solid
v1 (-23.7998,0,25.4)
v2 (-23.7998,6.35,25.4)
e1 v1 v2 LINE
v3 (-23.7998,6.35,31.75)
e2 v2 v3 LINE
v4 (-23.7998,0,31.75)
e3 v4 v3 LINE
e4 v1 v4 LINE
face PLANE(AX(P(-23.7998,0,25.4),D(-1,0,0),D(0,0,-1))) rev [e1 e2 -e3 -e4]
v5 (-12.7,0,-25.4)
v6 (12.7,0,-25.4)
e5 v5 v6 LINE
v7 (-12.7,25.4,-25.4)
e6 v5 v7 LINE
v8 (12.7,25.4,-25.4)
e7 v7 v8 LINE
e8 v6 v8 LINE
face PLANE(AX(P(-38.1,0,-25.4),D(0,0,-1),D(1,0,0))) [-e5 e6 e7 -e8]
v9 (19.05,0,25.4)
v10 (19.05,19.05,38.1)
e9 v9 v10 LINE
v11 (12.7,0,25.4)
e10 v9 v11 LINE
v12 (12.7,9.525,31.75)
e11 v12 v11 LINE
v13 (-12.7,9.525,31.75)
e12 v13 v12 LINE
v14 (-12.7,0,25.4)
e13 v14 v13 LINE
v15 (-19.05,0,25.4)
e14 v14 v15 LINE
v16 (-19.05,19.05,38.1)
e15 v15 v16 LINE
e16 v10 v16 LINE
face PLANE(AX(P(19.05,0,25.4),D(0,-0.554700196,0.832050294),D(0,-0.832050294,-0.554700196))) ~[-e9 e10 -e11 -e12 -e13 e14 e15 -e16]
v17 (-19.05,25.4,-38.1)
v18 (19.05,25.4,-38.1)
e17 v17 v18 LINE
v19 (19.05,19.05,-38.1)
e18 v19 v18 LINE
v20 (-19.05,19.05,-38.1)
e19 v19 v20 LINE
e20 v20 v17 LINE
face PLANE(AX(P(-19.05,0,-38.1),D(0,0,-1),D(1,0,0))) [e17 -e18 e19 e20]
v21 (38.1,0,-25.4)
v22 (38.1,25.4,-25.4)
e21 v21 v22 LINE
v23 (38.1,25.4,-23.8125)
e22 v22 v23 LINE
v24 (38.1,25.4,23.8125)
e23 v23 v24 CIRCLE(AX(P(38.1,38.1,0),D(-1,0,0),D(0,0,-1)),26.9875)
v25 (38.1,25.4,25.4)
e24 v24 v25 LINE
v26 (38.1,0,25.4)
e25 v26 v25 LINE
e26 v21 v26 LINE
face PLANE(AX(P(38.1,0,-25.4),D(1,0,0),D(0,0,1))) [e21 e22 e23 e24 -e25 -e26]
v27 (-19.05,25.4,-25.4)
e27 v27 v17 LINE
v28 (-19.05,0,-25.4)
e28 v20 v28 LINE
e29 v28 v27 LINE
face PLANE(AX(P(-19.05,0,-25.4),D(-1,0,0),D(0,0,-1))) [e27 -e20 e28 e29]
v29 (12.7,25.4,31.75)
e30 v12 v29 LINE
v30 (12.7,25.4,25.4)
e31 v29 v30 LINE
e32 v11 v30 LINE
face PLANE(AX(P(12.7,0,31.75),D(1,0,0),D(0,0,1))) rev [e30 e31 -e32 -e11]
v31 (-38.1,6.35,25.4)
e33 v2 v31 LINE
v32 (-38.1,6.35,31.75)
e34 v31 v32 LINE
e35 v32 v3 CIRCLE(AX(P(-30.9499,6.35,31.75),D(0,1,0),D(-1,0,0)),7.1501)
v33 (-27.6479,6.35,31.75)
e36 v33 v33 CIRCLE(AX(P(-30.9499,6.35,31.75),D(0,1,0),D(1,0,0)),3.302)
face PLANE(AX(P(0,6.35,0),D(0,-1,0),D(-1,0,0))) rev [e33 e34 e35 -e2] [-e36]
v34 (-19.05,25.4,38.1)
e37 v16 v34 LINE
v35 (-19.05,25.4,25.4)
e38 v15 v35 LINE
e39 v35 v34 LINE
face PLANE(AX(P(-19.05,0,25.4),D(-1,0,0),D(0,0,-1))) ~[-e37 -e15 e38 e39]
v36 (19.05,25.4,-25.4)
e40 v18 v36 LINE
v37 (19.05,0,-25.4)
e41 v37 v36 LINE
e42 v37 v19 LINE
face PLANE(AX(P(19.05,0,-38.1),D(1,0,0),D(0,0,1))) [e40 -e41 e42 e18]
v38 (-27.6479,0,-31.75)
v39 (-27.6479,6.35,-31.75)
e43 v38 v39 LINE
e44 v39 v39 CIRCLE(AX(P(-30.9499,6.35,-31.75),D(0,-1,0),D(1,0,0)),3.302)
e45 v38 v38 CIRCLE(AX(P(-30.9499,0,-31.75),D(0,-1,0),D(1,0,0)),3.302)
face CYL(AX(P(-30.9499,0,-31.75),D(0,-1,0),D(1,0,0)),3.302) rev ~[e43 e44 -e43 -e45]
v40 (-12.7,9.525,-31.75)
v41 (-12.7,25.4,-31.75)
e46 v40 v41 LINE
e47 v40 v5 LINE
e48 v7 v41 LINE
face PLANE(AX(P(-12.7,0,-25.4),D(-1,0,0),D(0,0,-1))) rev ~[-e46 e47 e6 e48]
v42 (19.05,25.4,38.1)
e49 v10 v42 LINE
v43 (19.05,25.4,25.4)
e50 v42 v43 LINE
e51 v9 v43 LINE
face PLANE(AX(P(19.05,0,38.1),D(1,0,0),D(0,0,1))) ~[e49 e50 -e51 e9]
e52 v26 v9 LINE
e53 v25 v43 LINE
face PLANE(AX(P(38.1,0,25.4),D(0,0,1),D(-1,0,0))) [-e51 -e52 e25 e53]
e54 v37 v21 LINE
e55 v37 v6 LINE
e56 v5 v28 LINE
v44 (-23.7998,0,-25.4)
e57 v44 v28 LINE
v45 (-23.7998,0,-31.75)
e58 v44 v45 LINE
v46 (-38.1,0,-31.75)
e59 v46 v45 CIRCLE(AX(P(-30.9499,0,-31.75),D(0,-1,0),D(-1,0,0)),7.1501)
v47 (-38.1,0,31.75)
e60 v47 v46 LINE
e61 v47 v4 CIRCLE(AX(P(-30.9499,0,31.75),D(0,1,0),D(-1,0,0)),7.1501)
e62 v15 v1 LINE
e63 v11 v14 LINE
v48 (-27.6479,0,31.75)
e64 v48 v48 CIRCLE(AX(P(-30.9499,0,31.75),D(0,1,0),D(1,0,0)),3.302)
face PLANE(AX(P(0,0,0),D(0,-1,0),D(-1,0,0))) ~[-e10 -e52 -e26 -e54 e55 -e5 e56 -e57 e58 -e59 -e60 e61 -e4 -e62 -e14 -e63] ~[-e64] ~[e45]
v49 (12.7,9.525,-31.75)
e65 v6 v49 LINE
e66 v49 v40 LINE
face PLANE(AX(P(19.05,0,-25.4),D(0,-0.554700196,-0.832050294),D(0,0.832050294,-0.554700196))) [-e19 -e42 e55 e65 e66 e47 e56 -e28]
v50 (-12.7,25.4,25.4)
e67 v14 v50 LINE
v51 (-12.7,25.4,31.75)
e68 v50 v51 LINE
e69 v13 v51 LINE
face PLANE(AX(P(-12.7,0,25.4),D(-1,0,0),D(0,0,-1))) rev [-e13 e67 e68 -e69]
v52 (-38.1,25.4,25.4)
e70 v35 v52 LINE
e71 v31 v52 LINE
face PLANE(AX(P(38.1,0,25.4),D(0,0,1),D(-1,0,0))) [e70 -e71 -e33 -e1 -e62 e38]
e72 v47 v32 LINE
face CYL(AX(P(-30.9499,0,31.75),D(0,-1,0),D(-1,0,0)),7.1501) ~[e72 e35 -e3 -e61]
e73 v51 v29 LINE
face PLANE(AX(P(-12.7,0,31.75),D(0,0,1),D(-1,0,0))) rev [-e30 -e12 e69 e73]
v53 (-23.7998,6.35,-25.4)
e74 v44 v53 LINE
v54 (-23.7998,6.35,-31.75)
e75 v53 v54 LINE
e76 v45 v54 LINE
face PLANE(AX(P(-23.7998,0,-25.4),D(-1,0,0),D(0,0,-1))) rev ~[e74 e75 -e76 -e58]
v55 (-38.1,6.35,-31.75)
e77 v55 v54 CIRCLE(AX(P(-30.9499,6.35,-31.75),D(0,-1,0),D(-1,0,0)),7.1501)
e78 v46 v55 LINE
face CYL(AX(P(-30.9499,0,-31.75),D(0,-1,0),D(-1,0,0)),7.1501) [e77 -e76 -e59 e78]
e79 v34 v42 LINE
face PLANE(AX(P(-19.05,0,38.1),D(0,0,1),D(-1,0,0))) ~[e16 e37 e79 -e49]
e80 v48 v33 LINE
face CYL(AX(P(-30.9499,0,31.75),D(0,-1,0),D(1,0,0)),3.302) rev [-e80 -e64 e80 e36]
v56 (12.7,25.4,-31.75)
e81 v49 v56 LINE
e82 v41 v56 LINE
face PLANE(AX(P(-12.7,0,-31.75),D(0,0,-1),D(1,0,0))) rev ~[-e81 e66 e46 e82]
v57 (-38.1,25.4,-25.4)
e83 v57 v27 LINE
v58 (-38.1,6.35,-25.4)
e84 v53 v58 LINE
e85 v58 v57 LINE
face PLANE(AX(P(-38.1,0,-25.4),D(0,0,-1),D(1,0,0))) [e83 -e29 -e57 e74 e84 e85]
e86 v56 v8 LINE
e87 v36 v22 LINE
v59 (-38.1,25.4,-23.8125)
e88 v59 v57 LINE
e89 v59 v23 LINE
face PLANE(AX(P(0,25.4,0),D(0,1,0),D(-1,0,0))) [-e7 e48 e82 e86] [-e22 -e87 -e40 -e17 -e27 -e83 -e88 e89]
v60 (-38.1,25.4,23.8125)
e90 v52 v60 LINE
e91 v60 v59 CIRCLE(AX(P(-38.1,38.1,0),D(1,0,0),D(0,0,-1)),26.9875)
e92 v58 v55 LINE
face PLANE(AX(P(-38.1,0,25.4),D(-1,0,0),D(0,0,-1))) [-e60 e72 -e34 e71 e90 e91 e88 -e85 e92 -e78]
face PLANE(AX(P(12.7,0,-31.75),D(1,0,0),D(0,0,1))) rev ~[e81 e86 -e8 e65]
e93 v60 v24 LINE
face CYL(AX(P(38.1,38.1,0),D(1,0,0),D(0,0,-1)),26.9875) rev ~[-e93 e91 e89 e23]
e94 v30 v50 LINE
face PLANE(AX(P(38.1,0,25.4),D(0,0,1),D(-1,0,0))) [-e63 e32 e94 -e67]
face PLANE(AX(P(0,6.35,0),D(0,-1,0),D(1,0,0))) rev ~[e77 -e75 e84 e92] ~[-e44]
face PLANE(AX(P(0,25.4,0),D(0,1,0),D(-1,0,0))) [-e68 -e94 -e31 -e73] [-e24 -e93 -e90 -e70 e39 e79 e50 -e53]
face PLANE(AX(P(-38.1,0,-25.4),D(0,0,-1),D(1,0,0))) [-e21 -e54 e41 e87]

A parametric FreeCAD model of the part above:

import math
import FreeCAD as App
import Part
import Sketcher

V = App.Vector
Q = App.Units.Quantity


def add_polygon(sketch, points):
    """Adds a closed chain of lines whose ends are joined by coincident constraints."""
    first, n = sketch.GeometryCount, len(points)
    for a, b in zip(points, points[1:] + points[:1]):
        sketch.addGeometry(Part.LineSegment(App.Vector(*a, 0), App.Vector(*b, 0)), False)
    for i in range(n):
        sketch.addConstraint(Sketcher.Constraint("Coincident", first + i, 2, first + (i + 1) % n, 1))

doc = App.newDocument("Part")
body = doc.addObject("PartDesign::Body", "Body")

sketch1 = body.newObject("Sketcher::SketchObject", "Sketch")
sketch1.AttachmentSupport = (doc.getObject("XZ_Plane"), [""])
sketch1.MapMode = "FlatFace"
add_polygon(sketch1, [(-38, 25), (38, 25), (38, -25), (-38, -25)])
sketch1.addConstraint([
    Sketcher.Constraint("Horizontal", 0),
    Sketcher.Constraint("Vertical", 1),
    Sketcher.Constraint("Horizontal", 2),
    Sketcher.Constraint("Vertical", 3),
    Sketcher.Constraint("Symmetric", 0, 2, 2, 2, -1, 1),
    Sketcher.Constraint("DistanceX", 0, 1, 0, 2, Q("3 in")),
    Sketcher.Constraint("DistanceY", 1, 2, 1, 1, Q("2 in")),
])
pad1 = body.newObject("PartDesign::Pad", "Pad")
pad1.Profile = sketch1
pad1.Length = Q("1 in")
pad1.Reversed = True

sketch2 = body.newObject("Sketcher::SketchObject", "Sketch001")
sketch2.AttachmentSupport = (doc.getObject("YZ_Plane"), [""])
sketch2.MapMode = "FlatFace"
sketch2.AttachmentOffset = App.Placement(V(0, 0, 1.5 * 25.4), App.Rotation())
sketch2.addGeometry(Part.Circle(V(38, 0, 0), V(0, 0, 1), 27), False)
sketch2.addConstraint([
    Sketcher.Constraint("PointOnObject", 0, 3, -1),
    Sketcher.Constraint("Diameter", 0, Q("2.125 in")),
    Sketcher.Constraint("DistanceX", -1, 1, 0, 3, Q("1.5 in")),
])
pocket1 = body.newObject("PartDesign::Pocket", "Pocket")
pocket1.Profile = sketch2
pocket1.Type = "ThroughAll"

sketch3 = body.newObject("Sketcher::SketchObject", "Sketch002")
sketch3.AttachmentSupport = (doc.getObject("XZ_Plane"), [""])
sketch3.MapMode = "FlatFace"
add_polygon(sketch3, [(19, -38), (19, -25), (13, -25), (13, -32), (-13, -32), (-13, -25), (-19, -25), (-19, -38)])
sketch3.addConstraint([
    Sketcher.Constraint("Vertical", 0),
    Sketcher.Constraint("Horizontal", 1),
    Sketcher.Constraint("Vertical", 2),
    Sketcher.Constraint("Horizontal", 3),
    Sketcher.Constraint("Vertical", 4),
    Sketcher.Constraint("Horizontal", 5),
    Sketcher.Constraint("Vertical", 6),
    Sketcher.Constraint("Horizontal", 7),
    Sketcher.Constraint("Symmetric", 1, 2, 4, 2, -2),
    Sketcher.Constraint("Equal", 1, 5),
    Sketcher.Constraint("Equal", 5, 2),
    Sketcher.Constraint("DistanceX", 3, 2, 3, 1, Q("1 in")),
    Sketcher.Constraint("DistanceY", 0, 1, 0, 2, Q("0.5 in")),
    Sketcher.Constraint("DistanceY", 0, 2, -1, 1, Q("1 in")),
    Sketcher.Constraint("DistanceX", 1, 2, 1, 1, Q("0.25 in")),
])
pad2 = body.newObject("PartDesign::Pad", "Pad001")
pad2.Profile = sketch3
pad2.Length = Q("1 in")
pad2.Reversed = True

sketch4 = body.newObject("Sketcher::SketchObject", "Sketch003")
sketch4.AttachmentSupport = (doc.getObject("YZ_Plane"), [""])
sketch4.MapMode = "FlatFace"
sketch4.AttachmentOffset = App.Placement(V(0, 0, 0.75 * 25.4), App.Rotation())
add_polygon(sketch4, [(0, -25), (0, -38), (19, -38)])
sketch4.addConstraint([
    Sketcher.Constraint("Vertical", 0),
    Sketcher.Constraint("Horizontal", 1),
    Sketcher.Constraint("PointOnObject", 0, 2, -2),
    Sketcher.Constraint("DistanceY", 0, 2, 0, 1, Q("0.5 in")),
    Sketcher.Constraint("DistanceY", 2, 2, -1, 1, Q("1 in")),
    Sketcher.Constraint("DistanceX", 1, 1, 1, 2, Q("0.75 in")),
])
pocket2 = body.newObject("PartDesign::Pocket", "Pocket001")
pocket2.Profile = sketch4
pocket2.Type = "ThroughAll"
doc.recompute()

mirrored = body.newObject("PartDesign::Mirrored", "Mirrored")
mirrored.Originals = [pad2, pocket2]
mirrored.MirrorPlane = (doc.getObject("XY_Plane"), [""])
body.Tip = mirrored

sketch5 = body.newObject("Sketcher::SketchObject", "Sketch004")
sketch5.AttachmentSupport = (doc.getObject("XZ_Plane"), [""])
sketch5.MapMode = "FlatFace"
sketch5.addGeometry([
    Part.LineSegment(V(-23.8, -25.4, 0), V(-38.1, -25.4, 0)),
    Part.LineSegment(V(-38.1, -25.4, 0), V(-38.1, -31.8, 0)),
    Part.ArcOfCircle(Part.Circle(V(-30.9, -31.8, 0), V(0, 0, 1), 7.2), math.radians(180), math.radians(360)),
    Part.LineSegment(V(-23.8, -31.8, 0), V(-23.8, -25.4, 0)),
    Part.Circle(V(-30.9, -31.8, 0), V(0, 0, 1), 3.3),
], False)
sketch5.addConstraint([
    Sketcher.Constraint("Coincident", 0, 2, 1, 1),
    Sketcher.Constraint("Tangent", 1, 2, 2, 1),
    Sketcher.Constraint("Tangent", 2, 2, 3, 1),
    Sketcher.Constraint("Coincident", 3, 2, 0, 1),
    Sketcher.Constraint("Horizontal", 0),
    Sketcher.Constraint("Vertical", 1),
    Sketcher.Constraint("Vertical", 3),
    Sketcher.Constraint("Coincident", 4, 3, 2, 3),
    Sketcher.Constraint("Diameter", 4, Q("0.26 in")),
    Sketcher.Constraint("DistanceY", 1, 2, 1, 1, Q("0.25 in")),
    Sketcher.Constraint("Radius", 2, Q("0.2815 in")),
    Sketcher.Constraint("DistanceY", 0, 2, -1, 1, Q("1 in")),
    Sketcher.Constraint("DistanceX", 0, 2, -1, 1, Q("1.5 in")),
])
pad3 = body.newObject("PartDesign::Pad", "Pad002")
pad3.Profile = sketch5
pad3.Length = Q("0.25 in")
pad3.Reversed = True
doc.recompute()

mirrored2 = body.newObject("PartDesign::Mirrored", "Mirrored001")
mirrored2.Originals = [pad3]
mirrored2.MirrorPlane = (doc.getObject("XY_Plane"), [""])
body.Tip = mirrored2

doc.recompute()
